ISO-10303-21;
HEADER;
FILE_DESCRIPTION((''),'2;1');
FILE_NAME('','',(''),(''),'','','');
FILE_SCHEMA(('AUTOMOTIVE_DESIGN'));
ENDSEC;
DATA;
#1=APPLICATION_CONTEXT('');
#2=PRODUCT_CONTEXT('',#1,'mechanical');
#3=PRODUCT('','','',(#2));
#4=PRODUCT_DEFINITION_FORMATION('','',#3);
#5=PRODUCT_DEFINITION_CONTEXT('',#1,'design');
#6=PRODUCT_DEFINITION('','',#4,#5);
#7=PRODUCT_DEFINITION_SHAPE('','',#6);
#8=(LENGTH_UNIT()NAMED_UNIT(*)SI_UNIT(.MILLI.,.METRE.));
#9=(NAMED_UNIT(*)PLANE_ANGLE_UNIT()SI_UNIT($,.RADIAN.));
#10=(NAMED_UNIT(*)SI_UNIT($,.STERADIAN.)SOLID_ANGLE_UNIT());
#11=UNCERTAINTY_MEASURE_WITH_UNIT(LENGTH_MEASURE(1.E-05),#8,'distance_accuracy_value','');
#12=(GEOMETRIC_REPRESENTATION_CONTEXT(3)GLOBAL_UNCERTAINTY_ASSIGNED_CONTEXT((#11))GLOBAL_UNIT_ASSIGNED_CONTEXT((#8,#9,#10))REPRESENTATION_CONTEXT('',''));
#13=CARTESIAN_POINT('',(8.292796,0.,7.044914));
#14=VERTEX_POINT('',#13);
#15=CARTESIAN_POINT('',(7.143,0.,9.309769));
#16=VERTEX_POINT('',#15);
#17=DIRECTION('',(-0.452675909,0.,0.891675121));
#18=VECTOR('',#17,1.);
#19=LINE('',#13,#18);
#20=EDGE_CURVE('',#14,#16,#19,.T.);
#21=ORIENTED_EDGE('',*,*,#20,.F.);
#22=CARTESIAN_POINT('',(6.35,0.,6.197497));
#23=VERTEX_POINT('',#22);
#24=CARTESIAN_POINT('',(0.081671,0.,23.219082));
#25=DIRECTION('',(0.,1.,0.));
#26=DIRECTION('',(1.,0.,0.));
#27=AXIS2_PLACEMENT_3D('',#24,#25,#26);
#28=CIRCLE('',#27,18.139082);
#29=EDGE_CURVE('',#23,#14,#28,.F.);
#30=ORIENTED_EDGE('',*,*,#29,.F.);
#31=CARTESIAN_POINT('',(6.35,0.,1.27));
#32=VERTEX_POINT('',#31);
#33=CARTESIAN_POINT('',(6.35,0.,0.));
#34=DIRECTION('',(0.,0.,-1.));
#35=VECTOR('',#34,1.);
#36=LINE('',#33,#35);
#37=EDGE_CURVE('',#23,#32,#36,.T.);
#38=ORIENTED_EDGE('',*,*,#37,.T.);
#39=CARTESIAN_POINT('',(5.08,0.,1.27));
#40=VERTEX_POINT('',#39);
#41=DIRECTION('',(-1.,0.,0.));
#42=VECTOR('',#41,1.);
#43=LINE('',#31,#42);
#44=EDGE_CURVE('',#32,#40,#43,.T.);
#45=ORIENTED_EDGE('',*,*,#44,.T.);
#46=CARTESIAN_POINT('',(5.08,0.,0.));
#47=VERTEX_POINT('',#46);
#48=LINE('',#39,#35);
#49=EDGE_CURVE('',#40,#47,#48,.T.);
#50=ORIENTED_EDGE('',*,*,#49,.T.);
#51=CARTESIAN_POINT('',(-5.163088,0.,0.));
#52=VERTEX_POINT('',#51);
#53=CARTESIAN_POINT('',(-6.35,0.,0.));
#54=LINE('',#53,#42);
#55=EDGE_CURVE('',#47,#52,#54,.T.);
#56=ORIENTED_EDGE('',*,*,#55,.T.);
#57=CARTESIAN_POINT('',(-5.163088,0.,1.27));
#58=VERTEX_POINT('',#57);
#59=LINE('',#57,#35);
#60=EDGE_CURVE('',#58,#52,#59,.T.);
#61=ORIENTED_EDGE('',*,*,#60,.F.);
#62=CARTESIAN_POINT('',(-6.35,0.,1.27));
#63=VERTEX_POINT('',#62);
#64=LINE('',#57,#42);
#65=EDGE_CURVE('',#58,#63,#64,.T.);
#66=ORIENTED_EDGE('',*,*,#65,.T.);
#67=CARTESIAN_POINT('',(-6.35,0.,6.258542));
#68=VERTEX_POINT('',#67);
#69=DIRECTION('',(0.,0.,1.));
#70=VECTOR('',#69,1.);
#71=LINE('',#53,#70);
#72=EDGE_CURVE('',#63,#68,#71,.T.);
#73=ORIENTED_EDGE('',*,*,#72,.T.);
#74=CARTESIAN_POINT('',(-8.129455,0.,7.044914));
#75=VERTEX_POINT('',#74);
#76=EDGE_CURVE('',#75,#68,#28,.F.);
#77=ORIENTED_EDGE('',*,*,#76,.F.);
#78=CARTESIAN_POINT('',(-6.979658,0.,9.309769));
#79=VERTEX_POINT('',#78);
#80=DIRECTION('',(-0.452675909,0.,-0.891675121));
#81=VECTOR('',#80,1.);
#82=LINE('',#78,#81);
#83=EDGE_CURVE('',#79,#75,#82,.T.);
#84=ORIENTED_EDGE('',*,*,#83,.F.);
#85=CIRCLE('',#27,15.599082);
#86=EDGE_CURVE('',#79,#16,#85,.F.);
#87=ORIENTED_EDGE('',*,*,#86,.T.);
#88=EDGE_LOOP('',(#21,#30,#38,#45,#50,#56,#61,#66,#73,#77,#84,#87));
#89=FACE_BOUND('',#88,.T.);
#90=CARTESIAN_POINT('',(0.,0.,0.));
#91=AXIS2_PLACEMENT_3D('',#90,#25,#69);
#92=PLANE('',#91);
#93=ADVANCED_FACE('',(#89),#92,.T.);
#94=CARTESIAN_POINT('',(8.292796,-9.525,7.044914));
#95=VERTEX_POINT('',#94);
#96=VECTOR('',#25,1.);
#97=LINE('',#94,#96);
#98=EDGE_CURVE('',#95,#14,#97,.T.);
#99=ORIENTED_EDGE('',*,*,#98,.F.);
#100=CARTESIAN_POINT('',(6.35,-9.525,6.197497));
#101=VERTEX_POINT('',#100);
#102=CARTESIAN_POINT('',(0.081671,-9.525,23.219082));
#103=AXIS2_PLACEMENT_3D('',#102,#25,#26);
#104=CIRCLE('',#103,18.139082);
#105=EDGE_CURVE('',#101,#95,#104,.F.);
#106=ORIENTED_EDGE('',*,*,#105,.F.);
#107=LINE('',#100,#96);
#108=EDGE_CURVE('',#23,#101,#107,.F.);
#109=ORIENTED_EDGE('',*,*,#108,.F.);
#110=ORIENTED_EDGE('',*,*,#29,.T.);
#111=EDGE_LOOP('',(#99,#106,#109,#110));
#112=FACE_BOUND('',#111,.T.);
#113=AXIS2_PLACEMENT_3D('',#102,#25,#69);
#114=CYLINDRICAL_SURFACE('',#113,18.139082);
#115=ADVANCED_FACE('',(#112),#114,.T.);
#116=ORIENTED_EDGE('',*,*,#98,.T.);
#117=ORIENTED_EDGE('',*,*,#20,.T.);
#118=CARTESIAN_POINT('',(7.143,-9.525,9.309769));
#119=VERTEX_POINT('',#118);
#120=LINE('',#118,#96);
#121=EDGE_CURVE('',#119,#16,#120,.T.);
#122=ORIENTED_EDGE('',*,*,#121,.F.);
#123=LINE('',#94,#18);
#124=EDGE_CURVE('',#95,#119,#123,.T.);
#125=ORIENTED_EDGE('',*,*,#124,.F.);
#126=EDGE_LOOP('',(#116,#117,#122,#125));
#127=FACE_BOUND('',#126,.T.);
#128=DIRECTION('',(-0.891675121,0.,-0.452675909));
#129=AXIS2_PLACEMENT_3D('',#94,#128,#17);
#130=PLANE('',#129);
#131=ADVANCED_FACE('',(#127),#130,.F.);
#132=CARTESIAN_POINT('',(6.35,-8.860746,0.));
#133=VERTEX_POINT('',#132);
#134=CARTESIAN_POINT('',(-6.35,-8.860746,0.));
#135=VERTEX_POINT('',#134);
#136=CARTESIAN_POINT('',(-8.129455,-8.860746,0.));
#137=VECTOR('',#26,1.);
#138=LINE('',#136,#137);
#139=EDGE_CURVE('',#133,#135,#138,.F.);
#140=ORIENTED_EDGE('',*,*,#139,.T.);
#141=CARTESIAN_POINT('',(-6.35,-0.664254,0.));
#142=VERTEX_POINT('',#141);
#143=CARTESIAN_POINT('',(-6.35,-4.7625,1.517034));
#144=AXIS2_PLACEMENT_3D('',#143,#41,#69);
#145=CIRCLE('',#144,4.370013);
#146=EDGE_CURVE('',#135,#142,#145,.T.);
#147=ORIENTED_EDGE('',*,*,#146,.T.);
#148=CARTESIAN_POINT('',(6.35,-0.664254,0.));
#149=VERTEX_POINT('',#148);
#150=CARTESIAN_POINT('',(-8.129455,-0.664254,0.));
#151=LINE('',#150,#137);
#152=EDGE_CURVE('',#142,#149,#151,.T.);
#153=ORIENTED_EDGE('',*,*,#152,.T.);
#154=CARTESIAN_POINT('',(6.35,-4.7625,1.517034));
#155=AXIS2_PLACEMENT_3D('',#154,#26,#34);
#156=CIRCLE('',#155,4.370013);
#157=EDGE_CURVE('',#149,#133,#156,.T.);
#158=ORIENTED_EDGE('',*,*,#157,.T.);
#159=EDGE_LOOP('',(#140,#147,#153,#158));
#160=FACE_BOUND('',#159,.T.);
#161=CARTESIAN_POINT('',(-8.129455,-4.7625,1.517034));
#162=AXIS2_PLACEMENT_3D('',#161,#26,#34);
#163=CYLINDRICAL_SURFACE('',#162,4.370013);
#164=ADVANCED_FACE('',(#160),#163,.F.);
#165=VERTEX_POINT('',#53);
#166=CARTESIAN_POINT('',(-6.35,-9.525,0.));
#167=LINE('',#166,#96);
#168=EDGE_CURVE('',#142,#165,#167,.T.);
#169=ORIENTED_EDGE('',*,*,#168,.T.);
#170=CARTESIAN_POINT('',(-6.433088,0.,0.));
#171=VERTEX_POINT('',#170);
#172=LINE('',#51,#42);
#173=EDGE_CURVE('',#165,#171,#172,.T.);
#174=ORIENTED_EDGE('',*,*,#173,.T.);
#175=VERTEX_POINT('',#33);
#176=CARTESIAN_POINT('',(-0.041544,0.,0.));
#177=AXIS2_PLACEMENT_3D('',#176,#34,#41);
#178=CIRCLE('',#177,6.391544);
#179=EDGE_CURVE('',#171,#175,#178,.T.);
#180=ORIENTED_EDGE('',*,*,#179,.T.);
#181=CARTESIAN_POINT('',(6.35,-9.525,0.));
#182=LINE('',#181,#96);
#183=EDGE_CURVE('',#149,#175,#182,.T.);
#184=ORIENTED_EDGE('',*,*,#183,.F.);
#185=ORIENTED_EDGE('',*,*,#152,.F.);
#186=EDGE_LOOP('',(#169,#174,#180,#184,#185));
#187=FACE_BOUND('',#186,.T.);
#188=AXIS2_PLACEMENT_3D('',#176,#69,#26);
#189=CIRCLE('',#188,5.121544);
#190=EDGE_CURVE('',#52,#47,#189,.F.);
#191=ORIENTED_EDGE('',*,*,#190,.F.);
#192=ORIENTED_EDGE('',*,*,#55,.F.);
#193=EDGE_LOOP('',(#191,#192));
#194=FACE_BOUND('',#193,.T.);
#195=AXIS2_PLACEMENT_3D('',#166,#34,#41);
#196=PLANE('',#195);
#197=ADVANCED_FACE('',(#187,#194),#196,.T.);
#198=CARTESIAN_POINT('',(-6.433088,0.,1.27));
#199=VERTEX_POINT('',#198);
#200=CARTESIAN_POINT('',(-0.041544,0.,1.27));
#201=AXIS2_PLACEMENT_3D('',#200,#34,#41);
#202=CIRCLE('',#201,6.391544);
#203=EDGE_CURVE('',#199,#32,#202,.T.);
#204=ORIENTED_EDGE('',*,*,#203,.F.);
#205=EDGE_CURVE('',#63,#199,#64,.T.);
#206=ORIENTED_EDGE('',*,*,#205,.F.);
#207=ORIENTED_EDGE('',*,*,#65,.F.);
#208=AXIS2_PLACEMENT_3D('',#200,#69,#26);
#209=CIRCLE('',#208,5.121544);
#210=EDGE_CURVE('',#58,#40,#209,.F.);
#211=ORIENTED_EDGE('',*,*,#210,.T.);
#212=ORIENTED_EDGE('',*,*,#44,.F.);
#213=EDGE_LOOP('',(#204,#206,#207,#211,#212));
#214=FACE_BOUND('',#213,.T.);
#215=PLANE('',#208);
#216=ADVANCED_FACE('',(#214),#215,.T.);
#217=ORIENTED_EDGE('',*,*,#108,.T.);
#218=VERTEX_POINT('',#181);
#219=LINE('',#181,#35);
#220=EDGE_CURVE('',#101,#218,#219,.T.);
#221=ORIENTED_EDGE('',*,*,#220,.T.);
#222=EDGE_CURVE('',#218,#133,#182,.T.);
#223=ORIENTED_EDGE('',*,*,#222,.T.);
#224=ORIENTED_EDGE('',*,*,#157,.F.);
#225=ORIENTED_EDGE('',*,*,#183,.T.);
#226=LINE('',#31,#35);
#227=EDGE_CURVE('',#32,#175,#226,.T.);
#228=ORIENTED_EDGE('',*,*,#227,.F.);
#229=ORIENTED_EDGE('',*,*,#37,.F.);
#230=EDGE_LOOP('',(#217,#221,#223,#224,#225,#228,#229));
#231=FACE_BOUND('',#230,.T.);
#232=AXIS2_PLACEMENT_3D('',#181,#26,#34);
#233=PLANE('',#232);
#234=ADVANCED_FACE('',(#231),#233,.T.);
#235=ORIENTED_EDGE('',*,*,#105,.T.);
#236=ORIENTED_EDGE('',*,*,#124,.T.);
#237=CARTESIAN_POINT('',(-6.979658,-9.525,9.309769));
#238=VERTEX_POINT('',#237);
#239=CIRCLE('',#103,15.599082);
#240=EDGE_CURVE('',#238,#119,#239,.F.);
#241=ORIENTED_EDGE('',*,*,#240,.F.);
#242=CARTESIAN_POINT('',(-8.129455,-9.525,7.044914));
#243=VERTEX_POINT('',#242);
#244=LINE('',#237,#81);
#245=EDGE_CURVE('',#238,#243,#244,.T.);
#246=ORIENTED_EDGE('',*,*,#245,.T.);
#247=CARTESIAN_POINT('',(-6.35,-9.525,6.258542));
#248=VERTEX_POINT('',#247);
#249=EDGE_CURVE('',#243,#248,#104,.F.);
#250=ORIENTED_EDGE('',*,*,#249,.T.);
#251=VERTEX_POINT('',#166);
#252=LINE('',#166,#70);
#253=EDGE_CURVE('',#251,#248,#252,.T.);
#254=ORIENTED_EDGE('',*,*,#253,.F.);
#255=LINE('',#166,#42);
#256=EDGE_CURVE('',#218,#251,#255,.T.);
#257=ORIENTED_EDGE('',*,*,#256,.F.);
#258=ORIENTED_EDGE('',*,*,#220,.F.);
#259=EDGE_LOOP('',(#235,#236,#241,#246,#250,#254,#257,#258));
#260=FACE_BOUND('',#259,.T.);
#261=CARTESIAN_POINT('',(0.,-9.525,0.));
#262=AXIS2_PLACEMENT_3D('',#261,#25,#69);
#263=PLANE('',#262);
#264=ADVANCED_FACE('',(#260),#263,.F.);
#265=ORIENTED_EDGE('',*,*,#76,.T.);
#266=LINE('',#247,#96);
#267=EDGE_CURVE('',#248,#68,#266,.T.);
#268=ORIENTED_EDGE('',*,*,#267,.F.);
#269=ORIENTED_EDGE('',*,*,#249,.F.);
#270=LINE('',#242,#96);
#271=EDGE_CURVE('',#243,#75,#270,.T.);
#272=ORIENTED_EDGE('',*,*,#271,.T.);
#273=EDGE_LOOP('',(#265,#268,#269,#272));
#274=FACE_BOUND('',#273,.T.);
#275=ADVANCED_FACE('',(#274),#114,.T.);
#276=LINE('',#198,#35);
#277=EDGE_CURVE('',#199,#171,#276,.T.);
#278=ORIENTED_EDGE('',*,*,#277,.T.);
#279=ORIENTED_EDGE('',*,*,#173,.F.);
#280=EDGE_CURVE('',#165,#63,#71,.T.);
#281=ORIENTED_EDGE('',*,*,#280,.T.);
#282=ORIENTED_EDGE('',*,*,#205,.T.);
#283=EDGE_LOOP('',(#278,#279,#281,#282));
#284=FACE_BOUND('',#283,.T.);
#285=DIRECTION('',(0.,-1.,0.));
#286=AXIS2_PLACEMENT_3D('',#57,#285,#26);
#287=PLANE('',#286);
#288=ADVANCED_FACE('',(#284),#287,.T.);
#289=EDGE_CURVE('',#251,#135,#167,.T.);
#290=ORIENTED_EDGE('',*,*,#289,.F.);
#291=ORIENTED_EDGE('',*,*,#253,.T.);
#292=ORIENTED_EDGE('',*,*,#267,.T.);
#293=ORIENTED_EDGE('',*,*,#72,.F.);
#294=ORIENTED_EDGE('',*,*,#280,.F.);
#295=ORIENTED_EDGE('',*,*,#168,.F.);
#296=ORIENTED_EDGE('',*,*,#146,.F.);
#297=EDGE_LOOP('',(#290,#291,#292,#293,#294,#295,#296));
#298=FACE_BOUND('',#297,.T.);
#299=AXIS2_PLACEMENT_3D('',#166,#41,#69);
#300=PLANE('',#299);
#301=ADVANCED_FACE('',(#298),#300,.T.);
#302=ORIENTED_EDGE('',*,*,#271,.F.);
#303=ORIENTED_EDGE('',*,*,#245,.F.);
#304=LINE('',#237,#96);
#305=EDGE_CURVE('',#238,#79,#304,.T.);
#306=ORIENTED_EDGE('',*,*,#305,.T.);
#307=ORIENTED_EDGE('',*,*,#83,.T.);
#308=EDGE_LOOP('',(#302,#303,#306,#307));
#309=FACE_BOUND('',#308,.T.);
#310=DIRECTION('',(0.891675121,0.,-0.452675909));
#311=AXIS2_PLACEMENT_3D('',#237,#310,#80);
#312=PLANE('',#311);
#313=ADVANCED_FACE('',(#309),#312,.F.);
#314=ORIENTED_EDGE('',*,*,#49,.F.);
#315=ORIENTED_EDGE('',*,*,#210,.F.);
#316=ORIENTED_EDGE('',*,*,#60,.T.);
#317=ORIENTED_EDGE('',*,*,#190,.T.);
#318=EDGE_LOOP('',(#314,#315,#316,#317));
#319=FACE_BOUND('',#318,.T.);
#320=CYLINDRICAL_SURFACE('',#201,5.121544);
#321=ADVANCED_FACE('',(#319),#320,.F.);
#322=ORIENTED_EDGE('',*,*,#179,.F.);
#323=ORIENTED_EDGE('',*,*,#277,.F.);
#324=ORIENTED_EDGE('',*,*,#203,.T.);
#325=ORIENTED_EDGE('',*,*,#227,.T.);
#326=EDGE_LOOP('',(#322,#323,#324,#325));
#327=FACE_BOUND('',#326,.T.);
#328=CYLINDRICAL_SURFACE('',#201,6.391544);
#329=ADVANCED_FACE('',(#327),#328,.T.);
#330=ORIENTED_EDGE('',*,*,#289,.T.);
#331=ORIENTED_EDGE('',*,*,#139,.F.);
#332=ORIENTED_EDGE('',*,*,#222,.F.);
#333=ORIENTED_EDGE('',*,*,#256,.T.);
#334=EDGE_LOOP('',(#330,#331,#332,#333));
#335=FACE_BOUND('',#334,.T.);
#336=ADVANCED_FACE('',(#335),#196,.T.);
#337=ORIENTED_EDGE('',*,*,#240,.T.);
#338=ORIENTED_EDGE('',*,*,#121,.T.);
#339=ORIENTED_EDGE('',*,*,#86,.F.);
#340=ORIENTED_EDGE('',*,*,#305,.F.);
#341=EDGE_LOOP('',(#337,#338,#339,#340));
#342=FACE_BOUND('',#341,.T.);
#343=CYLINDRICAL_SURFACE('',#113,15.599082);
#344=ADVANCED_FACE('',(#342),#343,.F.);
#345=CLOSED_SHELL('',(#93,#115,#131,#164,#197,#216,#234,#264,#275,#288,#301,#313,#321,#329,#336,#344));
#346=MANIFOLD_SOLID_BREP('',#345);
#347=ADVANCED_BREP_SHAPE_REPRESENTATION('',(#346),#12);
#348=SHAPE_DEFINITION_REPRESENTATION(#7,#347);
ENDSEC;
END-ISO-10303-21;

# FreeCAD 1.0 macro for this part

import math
import FreeCAD as App
import Part
import Sketcher

V = App.Vector
Q = App.Units.Quantity

doc = App.newDocument("Part")
params = doc.addObject("Spreadsheet::Sheet", "Params")
for row, (alias, value) in enumerate([
    ("sketch1_width", "0.5 in"),
    ("sketch1_height", "0.25 in"),
    ("pad1_length", "0.375 in"),
    ("sketch2_length", "0.1 in"),
    ("pad2_length", "0.375 in"),
    ("sketch4_width", "0.05 in"),
    ("pad3_length", "0.05 in"),
], start=1):
    params.set(f"A{row}", alias)
    params.set(f"B{row}", "=" + value)
    params.setAlias(f"B{row}", alias)

body = doc.addObject("PartDesign::Body", "Body")

# Sketch on XZ plane
sketch1 = doc.addObject("Sketcher::SketchObject", "Sketch")
body.addObject(sketch1)
sketch1.AttachmentSupport = (doc.XZ_Plane, [""])
sketch1.MapMode = "FlatFace"
sketch1.addGeometry([
    Part.LineSegment(V(-6, 0, 0), V(-6, 6, 0)),
    Part.LineSegment(V(-6, 6, 0), V(6, 6, 0)),
    Part.LineSegment(V(6, 6, 0), V(6, 0, 0)),
    Part.LineSegment(V(6, 0, 0), V(-6, 0, 0)),
], False)
sketch1.addConstraint([
    Sketcher.Constraint("Coincident", 0, 2, 1, 1),
    Sketcher.Constraint("Coincident", 1, 2, 2, 1),
    Sketcher.Constraint("Coincident", 2, 2, 3, 1),
    Sketcher.Constraint("Coincident", 3, 2, 0, 1),
    Sketcher.Constraint("Vertical", 0),
    Sketcher.Constraint("Horizontal", 1),
    Sketcher.Constraint("Vertical", 2),
    Sketcher.Constraint("Horizontal", 3),
    Sketcher.Constraint("Symmetric", 2, 2, 3, 2, -1, 1),
    Sketcher.Constraint("DistanceX", 1, 1, 1, 2, Q("0.5 in")),
    Sketcher.Constraint("DistanceY", 0, 1, 0, 2, Q("0.25 in")),
])
sketch1.setExpression("Constraints[9]", "Params.sketch1_width")
sketch1.setExpression("Constraints[10]", "Params.sketch1_height")
pad1 = doc.addObject("PartDesign::Pad", "Pad")
body.addObject(pad1)
pad1.Profile = sketch1
pad1.setExpression("Length", "Params.pad1_length")

# Sketch on XZ plane
sketch2 = doc.addObject("Sketcher::SketchObject", "Sketch001")
body.addObject(sketch2)
sketch2.AttachmentSupport = (doc.XZ_Plane, [""])
sketch2.MapMode = "FlatFace"
sketch2.addGeometry([
    Part.ArcOfCircle(Part.Circle(V(0.1, 23.2, 0), V(0, 0, 1), 15.6), math.radians(-117), math.radians(-63)),
    Part.LineSegment(V(7.1, 9.3, 0), V(8.3, 7, 0)),
    Part.ArcOfCircle(Part.Circle(V(0.1, 23.2, 0), V(0, 0, 1), 18.1), math.radians(-117), math.radians(-63)),
    Part.LineSegment(V(-8.1, 7, 0), V(-7, 9.3, 0)),
], False)
sketch2.addConstraint([
    Sketcher.Constraint("Coincident", 0, 2, 1, 1),
    Sketcher.Constraint("Coincident", 1, 2, 2, 2),
    Sketcher.Constraint("Coincident", 2, 1, 3, 1),
    Sketcher.Constraint("Coincident", 3, 2, 0, 1),
    Sketcher.Constraint("Coincident", 2, 3, 0, 3),
    Sketcher.Constraint("Horizontal", 1, 2, 2, 1),
    Sketcher.Constraint("Horizontal", 0, 2, 3, 2),
    Sketcher.Constraint("Distance", 1, Q("0.1 in")),
    Sketcher.Constraint("Radius", 0, 15.599082),
    Sketcher.Constraint("DistanceX", -1, 1, 0, 2, 7.143),
    Sketcher.Constraint("DistanceX", -1, 1, 0, 3, 0.081671),
    Sketcher.Constraint("DistanceY", -1, 1, 0, 2, 9.309769),
    Sketcher.Constraint("DistanceY", 1, 2, 0, 3, 16.174168),
])
sketch2.setExpression("Constraints[7]", "Params.sketch2_length")
pad2 = doc.addObject("PartDesign::Pad", "Pad001")
body.addObject(pad2)
pad2.Profile = sketch2
pad2.setExpression("Length", "Params.pad2_length")

# Sketch on YZ plane
sketch3 = doc.addObject("Sketcher::SketchObject", "Sketch002")
body.addObject(sketch3)
sketch3.AttachmentSupport = (doc.YZ_Plane, [""])
sketch3.MapMode = "FlatFace"
sketch3.addGeometry(Part.Circle(V(-4.8, 1.5, 0), V(0, 0, 1), 4.4), False)
sketch3.addConstraint([
    Sketcher.Constraint("DistanceX", 0, 3, -1, 1, Q("0.1875 in")),
    Sketcher.Constraint("Diameter", 0, 8.740026),
    Sketcher.Constraint("DistanceY", -1, 1, 0, 3, 1.517034),
])
pocket1 = doc.addObject("PartDesign::Pocket", "Pocket")
body.addObject(pocket1)
pocket1.Profile = sketch3
pocket1.Type = "ThroughAll"
pocket1.Midplane = True

# Sketch on XY plane
sketch4 = doc.addObject("Sketcher::SketchObject", "Sketch003")
body.addObject(sketch4)
sketch4.AttachmentSupport = (doc.XY_Plane, [""])
sketch4.MapMode = "FlatFace"
sketch4.addGeometry([
    Part.ArcOfCircle(Part.Circle(V(0, 0, 0), V(0, 0, 1), 6.4), math.radians(0), math.radians(180)),
    Part.LineSegment(V(-6.4, 0, 0), V(-5.2, 0, 0)),
    Part.ArcOfCircle(Part.Circle(V(0, 0, 0), V(0, 0, 1), 5.1), math.radians(0), math.radians(180)),
    Part.LineSegment(V(5.1, 0, 0), V(6.3, 0, 0)),
], False)
sketch4.addConstraint([
    Sketcher.Constraint("Coincident", 0, 2, 1, 1),
    Sketcher.Constraint("Coincident", 1, 2, 2, 2),
    Sketcher.Constraint("Coincident", 2, 1, 3, 1),
    Sketcher.Constraint("Coincident", 3, 2, 0, 1),
    Sketcher.Constraint("Horizontal", 1),
    Sketcher.Constraint("Horizontal", 3),
    Sketcher.Constraint("Coincident", 2, 3, 0, 3),
    Sketcher.Constraint("PointOnObject", 0, 3, -1),
    Sketcher.Constraint("PointOnObject", 0, 2, -1),
    Sketcher.Constraint("PointOnObject", 2, 1, -1),
    Sketcher.Constraint("DistanceX", 1, 1, 1, 2, Q("0.05 in")),
    Sketcher.Constraint("DistanceX", -1, 1, 2, 1, Q("0.2 in")),
    Sketcher.Constraint("Radius", 0, 6.391544),
])
sketch4.setExpression("Constraints[10]", "Params.sketch4_width")
pad3 = doc.addObject("PartDesign::Pad", "Pad002")
body.addObject(pad3)
pad3.Profile = sketch4
pad3.setExpression("Length", "Params.pad3_length")

doc.recompute()
